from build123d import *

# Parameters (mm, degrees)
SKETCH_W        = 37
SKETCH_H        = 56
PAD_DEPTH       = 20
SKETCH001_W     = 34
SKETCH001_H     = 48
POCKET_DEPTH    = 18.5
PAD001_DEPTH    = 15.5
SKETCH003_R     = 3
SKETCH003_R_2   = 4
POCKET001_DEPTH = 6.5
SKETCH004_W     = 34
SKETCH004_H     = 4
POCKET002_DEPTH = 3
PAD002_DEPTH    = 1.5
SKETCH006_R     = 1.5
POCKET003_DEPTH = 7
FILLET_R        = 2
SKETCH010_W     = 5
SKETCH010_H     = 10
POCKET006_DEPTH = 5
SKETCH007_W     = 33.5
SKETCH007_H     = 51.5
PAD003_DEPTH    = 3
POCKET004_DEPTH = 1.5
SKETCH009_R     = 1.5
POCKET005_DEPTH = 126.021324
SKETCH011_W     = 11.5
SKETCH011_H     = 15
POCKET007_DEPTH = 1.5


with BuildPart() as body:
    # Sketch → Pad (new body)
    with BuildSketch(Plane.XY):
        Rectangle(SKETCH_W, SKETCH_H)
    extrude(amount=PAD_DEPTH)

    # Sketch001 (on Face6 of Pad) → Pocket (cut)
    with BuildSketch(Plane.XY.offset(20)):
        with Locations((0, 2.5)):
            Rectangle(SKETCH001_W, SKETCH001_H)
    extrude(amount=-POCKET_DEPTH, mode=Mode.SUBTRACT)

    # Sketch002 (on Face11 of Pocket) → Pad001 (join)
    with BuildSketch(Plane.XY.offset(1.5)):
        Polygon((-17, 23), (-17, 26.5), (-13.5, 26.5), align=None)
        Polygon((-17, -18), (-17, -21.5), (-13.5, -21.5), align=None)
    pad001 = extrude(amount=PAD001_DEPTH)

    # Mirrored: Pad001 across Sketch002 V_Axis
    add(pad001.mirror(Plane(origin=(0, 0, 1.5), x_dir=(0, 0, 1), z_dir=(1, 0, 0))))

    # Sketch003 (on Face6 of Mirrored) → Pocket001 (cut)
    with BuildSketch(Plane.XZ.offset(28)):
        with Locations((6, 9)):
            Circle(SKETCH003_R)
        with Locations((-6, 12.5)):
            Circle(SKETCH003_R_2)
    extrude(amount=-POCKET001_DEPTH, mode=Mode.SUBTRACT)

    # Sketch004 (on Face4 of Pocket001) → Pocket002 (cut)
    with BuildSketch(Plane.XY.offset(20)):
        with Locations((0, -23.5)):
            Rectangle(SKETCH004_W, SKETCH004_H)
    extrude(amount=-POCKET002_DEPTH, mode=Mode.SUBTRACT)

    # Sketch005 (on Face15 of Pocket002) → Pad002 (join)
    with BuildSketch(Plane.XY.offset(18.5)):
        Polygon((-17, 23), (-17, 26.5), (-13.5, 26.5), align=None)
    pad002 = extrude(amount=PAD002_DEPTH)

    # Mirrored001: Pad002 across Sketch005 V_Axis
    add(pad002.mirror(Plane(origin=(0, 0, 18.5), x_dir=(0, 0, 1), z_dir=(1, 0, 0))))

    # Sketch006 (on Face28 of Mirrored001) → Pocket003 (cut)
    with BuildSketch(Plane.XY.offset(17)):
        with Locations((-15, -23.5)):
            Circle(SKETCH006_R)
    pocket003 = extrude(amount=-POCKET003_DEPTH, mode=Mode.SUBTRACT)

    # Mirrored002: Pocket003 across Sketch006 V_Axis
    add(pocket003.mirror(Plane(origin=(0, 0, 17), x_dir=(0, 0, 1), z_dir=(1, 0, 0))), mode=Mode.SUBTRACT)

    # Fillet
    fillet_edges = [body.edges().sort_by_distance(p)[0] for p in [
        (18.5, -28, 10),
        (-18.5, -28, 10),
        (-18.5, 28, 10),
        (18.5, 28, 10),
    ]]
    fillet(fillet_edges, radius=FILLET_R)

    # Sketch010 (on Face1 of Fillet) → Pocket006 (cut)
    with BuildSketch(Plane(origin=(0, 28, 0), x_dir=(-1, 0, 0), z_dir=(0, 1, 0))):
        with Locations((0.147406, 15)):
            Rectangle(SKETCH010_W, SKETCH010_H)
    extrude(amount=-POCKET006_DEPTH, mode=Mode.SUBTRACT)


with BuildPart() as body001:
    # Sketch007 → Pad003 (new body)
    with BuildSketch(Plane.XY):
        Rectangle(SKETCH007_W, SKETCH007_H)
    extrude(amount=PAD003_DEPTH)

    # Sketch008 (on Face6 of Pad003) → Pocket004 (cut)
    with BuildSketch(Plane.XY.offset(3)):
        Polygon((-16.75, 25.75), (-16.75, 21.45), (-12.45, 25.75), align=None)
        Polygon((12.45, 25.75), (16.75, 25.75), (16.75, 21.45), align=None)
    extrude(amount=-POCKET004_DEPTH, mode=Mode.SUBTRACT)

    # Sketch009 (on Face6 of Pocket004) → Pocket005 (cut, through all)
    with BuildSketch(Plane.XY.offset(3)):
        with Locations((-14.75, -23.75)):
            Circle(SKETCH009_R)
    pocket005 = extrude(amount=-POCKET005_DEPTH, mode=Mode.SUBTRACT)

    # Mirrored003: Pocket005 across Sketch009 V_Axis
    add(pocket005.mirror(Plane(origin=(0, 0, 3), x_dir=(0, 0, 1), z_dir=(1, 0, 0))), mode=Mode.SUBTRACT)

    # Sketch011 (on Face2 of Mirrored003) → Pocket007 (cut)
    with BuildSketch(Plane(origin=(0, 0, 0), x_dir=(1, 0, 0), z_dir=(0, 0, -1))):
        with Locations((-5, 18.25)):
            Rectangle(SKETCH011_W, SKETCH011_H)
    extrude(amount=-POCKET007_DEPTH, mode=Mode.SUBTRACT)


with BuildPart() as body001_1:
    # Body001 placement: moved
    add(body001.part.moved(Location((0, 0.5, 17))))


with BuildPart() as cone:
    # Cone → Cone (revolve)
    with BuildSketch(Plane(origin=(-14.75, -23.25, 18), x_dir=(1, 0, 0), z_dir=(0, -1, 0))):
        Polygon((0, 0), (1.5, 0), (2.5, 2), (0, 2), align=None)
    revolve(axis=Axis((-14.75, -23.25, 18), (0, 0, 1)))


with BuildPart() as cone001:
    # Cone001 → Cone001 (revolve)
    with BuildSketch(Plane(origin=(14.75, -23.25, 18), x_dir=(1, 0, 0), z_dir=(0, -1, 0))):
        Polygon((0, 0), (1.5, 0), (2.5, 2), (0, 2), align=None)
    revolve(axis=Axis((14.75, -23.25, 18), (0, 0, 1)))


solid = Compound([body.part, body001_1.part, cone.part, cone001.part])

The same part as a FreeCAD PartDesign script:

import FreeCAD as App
import Part
import Sketcher

V = App.Vector


def edges_at(feature, points):
    """Names of the edges that pass closest to the given points."""
    edges = feature.Shape.Edges
    near = lambda p: min(range(len(edges)), key=lambda i: edges[i].distToShape(Part.Vertex(*p))[0])
    return sorted({f"Edge{near(p) + 1}" for p in points})


def add_polygon(sketch, points):
    """Adds a closed chain of lines whose ends are joined by coincident constraints."""
    first, n = sketch.GeometryCount, len(points)
    for a, b in zip(points, points[1:] + points[:1]):
        sketch.addGeometry(Part.LineSegment(App.Vector(*a, 0), App.Vector(*b, 0)), False)
    for i in range(n):
        sketch.addConstraint(Sketcher.Constraint("Coincident", first + i, 2, first + (i + 1) % n, 1))

doc = App.newDocument("Part")
body = doc.addObject("PartDesign::Body", "Body")

# Sketch on XY plane
sketch1 = body.newObject("Sketcher::SketchObject", "Sketch")
sketch1.AttachmentSupport = (doc.getObject("XY_Plane"), [""])
sketch1.MapMode = "FlatFace"
add_polygon(sketch1, [(-18, 28), (-18, -28), (18, -28), (18, 28)])  # lines 0-3
sketch1.addConstraint([
    Sketcher.Constraint("Vertical", 0),
    Sketcher.Constraint("Horizontal", 1),
    Sketcher.Constraint("Vertical", 2),
    Sketcher.Constraint("Horizontal", 3),
    Sketcher.Constraint("Symmetric", 0, 2, 2, 2, -1, 1),
    Sketcher.Constraint("DistanceX", 1, 1, 1, 2, 37.0),
    Sketcher.Constraint("DistanceY", 0, 2, 0, 1, 56.0),
])
pad1 = body.newObject("PartDesign::Pad", "Pad")
pad1.Profile = sketch1
pad1.Length = 20

# Sketch on XY plane
sketch2 = body.newObject("Sketcher::SketchObject", "Sketch001")
sketch2.AttachmentSupport = (doc.getObject("XY_Plane"), [""])
sketch2.MapMode = "FlatFace"
sketch2.AttachmentOffset = App.Placement(V(0, 0, 20), App.Rotation())
add_polygon(sketch2, [(-17, 26), (-17, -22), (17, -22), (17, 26)])  # lines 0-3
sketch2.addConstraint([
    Sketcher.Constraint("Vertical", 0),
    Sketcher.Constraint("Horizontal", 1),
    Sketcher.Constraint("Vertical", 2),
    Sketcher.Constraint("Horizontal", 3),
    Sketcher.Constraint("DistanceX", 1, 1, 1, 2, 34.0),
    Sketcher.Constraint("DistanceY", 0, 2, 0, 1, 48.0),
    Sketcher.Constraint("DistanceX", 0, 2, -1, 1, 17.0),
    Sketcher.Constraint("DistanceY", 0, 2, -1, 1, 21.5),
])
pocket1 = body.newObject("PartDesign::Pocket", "Pocket")
pocket1.Profile = sketch2
pocket1.Length = 18.5

# Sketch on XY plane
sketch3 = body.newObject("Sketcher::SketchObject", "Sketch002")
sketch3.AttachmentSupport = (doc.getObject("XY_Plane"), [""])
sketch3.MapMode = "FlatFace"
sketch3.AttachmentOffset = App.Placement(V(0, 0, 1.5), App.Rotation())
add_polygon(sketch3, [(-17, 26.5), (-17, 23), (-13.5, 26.5)])  # lines 0-2
add_polygon(sketch3, [(-17, -18), (-17, -21.5), (-13.5, -21.5)])  # lines 3-5
sketch3.addConstraint([
    Sketcher.Constraint("Vertical", 0),
    Sketcher.Constraint("Horizontal", 2),
    Sketcher.Constraint("Vertical", 3),
    Sketcher.Constraint("Horizontal", 4),
    Sketcher.Constraint("Perpendicular", 1, 5),
    Sketcher.Constraint("Vertical", 2, 2, 3, 2),
    Sketcher.Constraint("Vertical", 1, 2, 4, 2),
    Sketcher.Constraint("Equal", 4, 0),
    Sketcher.Constraint("DistanceX", 2, 2, 2, 1, 3.5),
    Sketcher.Constraint("DistanceX", 0, 2, -1, 1, 17.0),
    Sketcher.Constraint("DistanceY", -1, 1, 0, 2, 23.0),
    Sketcher.Constraint("DistanceY", 5, 2, -1, 1, 18.0),
])
pad2 = body.newObject("PartDesign::Pad", "Pad001")
pad2.Profile = sketch3
pad2.Length = 15.5
doc.recompute()

mirrored = body.newObject("PartDesign::Mirrored", "Mirrored")
mirrored.Originals = [pad2]
mirrored.MirrorPlane = (doc.getObject("YZ_Plane"), [""])
body.Tip = mirrored

# Sketch on XZ plane
sketch4 = body.newObject("Sketcher::SketchObject", "Sketch003")
sketch4.AttachmentSupport = (doc.getObject("XZ_Plane"), [""])
sketch4.MapMode = "FlatFace"
sketch4.AttachmentOffset = App.Placement(V(0, 0, 28), App.Rotation())
sketch4.addGeometry([
    Part.Circle(V(6, 9, 0), V(0, 0, 1), 3),
    Part.Circle(V(-6, 12.5, 0), V(0, 0, 1), 4),
], False)
sketch4.addConstraint([
    Sketcher.Constraint("Diameter", 0, 6.0),
    Sketcher.Constraint("Diameter", 1, 8.0),
    Sketcher.Constraint("DistanceX", -1, 1, 0, 3, 6.0),
    Sketcher.Constraint("DistanceY", -1, 1, 0, 3, 9.0),
    Sketcher.Constraint("DistanceX", 1, 3, -1, 1, 6.0),
    Sketcher.Constraint("DistanceY", -1, 1, 1, 3, 12.5),
])
pocket2 = body.newObject("PartDesign::Pocket", "Pocket001")
pocket2.Profile = sketch4
pocket2.Length = 6.5

# Sketch on XY plane
sketch5 = body.newObject("Sketcher::SketchObject", "Sketch004")
sketch5.AttachmentSupport = (doc.getObject("XY_Plane"), [""])
sketch5.MapMode = "FlatFace"
sketch5.AttachmentOffset = App.Placement(V(0, 0, 20), App.Rotation())
add_polygon(sketch5, [(-17, -21.5), (-17, -25.5), (17, -25.5), (17, -21.5)])  # lines 0-3
sketch5.addConstraint([
    Sketcher.Constraint("Vertical", 0),
    Sketcher.Constraint("Horizontal", 1),
    Sketcher.Constraint("Vertical", 2),
    Sketcher.Constraint("Horizontal", 3),
    Sketcher.Constraint("DistanceX", 1, 1, 1, 2, 34.0),
    Sketcher.Constraint("DistanceY", 0, 2, 0, 1, 4.0),
    Sketcher.Constraint("DistanceX", 0, 2, -1, 1, 17.0),
    Sketcher.Constraint("DistanceY", 0, 2, -1, 1, 25.5),
])
pocket3 = body.newObject("PartDesign::Pocket", "Pocket002")
pocket3.Profile = sketch5
pocket3.Length = 3

# Sketch on XY plane
sketch6 = body.newObject("Sketcher::SketchObject", "Sketch005")
sketch6.AttachmentSupport = (doc.getObject("XY_Plane"), [""])
sketch6.MapMode = "FlatFace"
sketch6.AttachmentOffset = App.Placement(V(0, 0, 18.5), App.Rotation())
add_polygon(sketch6, [(-17, 26.5), (-17, 23), (-13.5, 26.5)])  # lines 0-2
sketch6.addConstraint([
    Sketcher.Constraint("Vertical", 0),
    Sketcher.Constraint("Horizontal", 2),
    Sketcher.Constraint("Equal", 2, 0),
    Sketcher.Constraint("DistanceX", 2, 2, 2, 1, 3.5),
    Sketcher.Constraint("DistanceX", 0, 2, -1, 1, 17.0),
    Sketcher.Constraint("DistanceY", -1, 1, 0, 2, 23.0),
])
pad3 = body.newObject("PartDesign::Pad", "Pad002")
pad3.Profile = sketch6
pad3.Length = 1.5
doc.recompute()

mirrored2 = body.newObject("PartDesign::Mirrored", "Mirrored001")
mirrored2.Originals = [pad3]
mirrored2.MirrorPlane = (doc.getObject("YZ_Plane"), [""])
body.Tip = mirrored2

# Sketch on XY plane
sketch7 = body.newObject("Sketcher::SketchObject", "Sketch006")
sketch7.AttachmentSupport = (doc.getObject("XY_Plane"), [""])
sketch7.MapMode = "FlatFace"
sketch7.AttachmentOffset = App.Placement(V(0, 0, 17), App.Rotation())
sketch7.addGeometry(Part.Circle(V(-15, -23.5, 0), V(0, 0, 1), 1.5), False)
sketch7.addConstraint([
    Sketcher.Constraint("Diameter", 0, 3.0),
    Sketcher.Constraint("DistanceX", 0, 3, -1, 1, 15.0),
    Sketcher.Constraint("DistanceY", 0, 3, -1, 1, 23.5),
])
pocket4 = body.newObject("PartDesign::Pocket", "Pocket003")
pocket4.Profile = sketch7
pocket4.Length = 7
doc.recompute()

mirrored3 = body.newObject("PartDesign::Mirrored", "Mirrored002")
mirrored3.Originals = [pocket4]
mirrored3.MirrorPlane = (doc.getObject("YZ_Plane"), [""])
body.Tip = mirrored3
doc.recompute()

fillet = body.newObject("PartDesign::Fillet", "Fillet")
fillet.Base = (mirrored3, edges_at(mirrored3, [
    (18.5, -28, 10),
    (-18.5, -28, 10),
    (-18.5, 28, 10),
    (18.5, 28, 10),
]))
fillet.Radius = 2

# Sketch on XZ plane
sketch8 = body.newObject("Sketcher::SketchObject", "Sketch007")
sketch8.AttachmentSupport = (doc.getObject("XZ_Plane"), [""])
sketch8.MapMode = "FlatFace"
sketch8.AttachmentOffset = App.Placement(V(0, 0, -28), App.Rotation())
add_polygon(sketch8, [(2, 20), (2, 10), (-3, 10), (-3, 20)])  # lines 0-3
sketch8.addConstraint([
    Sketcher.Constraint("Vertical", 0),
    Sketcher.Constraint("Horizontal", 1),
    Sketcher.Constraint("Vertical", 2),
    Sketcher.Constraint("Horizontal", 3),
    Sketcher.Constraint("DistanceX", 1, 2, 1, 1, 5.0),
    Sketcher.Constraint("DistanceY", 0, 2, 0, 1, 10.0),
    Sketcher.Constraint("DistanceY", -1, 1, 0, 2, 10.0),
    Sketcher.Constraint("DistanceX", -1, 1, 0, 2, 2.352594),
])
pocket5 = body.newObject("PartDesign::Pocket", "Pocket004")
pocket5.Profile = sketch8
pocket5.Length = 5
pocket5.Reversed = True
body2 = doc.addObject("PartDesign::Body", "Body001")

# Sketch on XY plane
sketch9 = body2.newObject("Sketcher::SketchObject", "Sketch008")
sketch9.AttachmentSupport = (doc.getObject("XY_Plane001"), [""])
sketch9.MapMode = "FlatFace"
add_polygon(sketch9, [(-17, 26), (-17, -26), (17, -26), (17, 26)])  # lines 0-3
sketch9.addConstraint([
    Sketcher.Constraint("Vertical", 0),
    Sketcher.Constraint("Horizontal", 1),
    Sketcher.Constraint("Vertical", 2),
    Sketcher.Constraint("Horizontal", 3),
    Sketcher.Constraint("Symmetric", 0, 2, 2, 2, -1, 1),
    Sketcher.Constraint("DistanceX", 1, 1, 1, 2, 33.5),
    Sketcher.Constraint("DistanceY", 0, 2, 0, 1, 51.5),
])
pad4 = body2.newObject("PartDesign::Pad", "Pad003")
pad4.Profile = sketch9
pad4.Length = 3

# Sketch on XY plane
sketch10 = body2.newObject("Sketcher::SketchObject", "Sketch009")
sketch10.AttachmentSupport = (doc.getObject("XY_Plane001"), [""])
sketch10.MapMode = "FlatFace"
sketch10.AttachmentOffset = App.Placement(V(0, 0, 3), App.Rotation())
add_polygon(sketch10, [(-16.8, 25.8), (-16.8, 21.4), (-12.4, 25.8)])  # lines 0-2
add_polygon(sketch10, [(16.8, 25.8), (12.4, 25.8), (16.8, 21.4)])  # lines 3-5
sketch10.addConstraint([
    Sketcher.Constraint("Vertical", 0),
    Sketcher.Constraint("Horizontal", 2),
    Sketcher.Constraint("Horizontal", 3),
    Sketcher.Constraint("Vertical", 5),
    Sketcher.Constraint("Symmetric", 1, 2, 3, 2, -2),
    Sketcher.Constraint("Symmetric", 0, 2, 4, 2, -2),
    Sketcher.Constraint("Perpendicular", 1, 4),
    Sketcher.Constraint("DistanceX", 2, 2, 2, 1, 4.3),
    Sketcher.Constraint("DistanceX", 1, 2, 3, 2, 24.9),
    Sketcher.Constraint("DistanceY", -1, 1, 0, 2, 21.45),
])
pocket6 = body2.newObject("PartDesign::Pocket", "Pocket005")
pocket6.Profile = sketch10
pocket6.Length = 1.5

# Sketch on XY plane
sketch11 = body2.newObject("Sketcher::SketchObject", "Sketch010")
sketch11.AttachmentSupport = (doc.getObject("XY_Plane001"), [""])
sketch11.MapMode = "FlatFace"
sketch11.AttachmentOffset = App.Placement(V(0, 0, 3), App.Rotation())
sketch11.addGeometry(Part.Circle(V(-14.8, -23.8, 0), V(0, 0, 1), 1.5), False)
sketch11.addConstraint([
    Sketcher.Constraint("Diameter", 0, 3.0),
    Sketcher.Constraint("DistanceX", 0, 3, -1, 1, 14.75),
    Sketcher.Constraint("DistanceY", 0, 3, -1, 1, 23.75),
])
pocket7 = body2.newObject("PartDesign::Pocket", "Pocket006")
pocket7.Profile = sketch11
pocket7.Type = "ThroughAll"
doc.recompute()

mirrored4 = body2.newObject("PartDesign::Mirrored", "Mirrored003")
mirrored4.Originals = [pocket7]
mirrored4.MirrorPlane = (doc.getObject("YZ_Plane001"), [""])
body2.Tip = mirrored4

# Sketch on XY plane
sketch12 = body2.newObject("Sketcher::SketchObject", "Sketch011")
sketch12.AttachmentSupport = (doc.getObject("XY_Plane001"), [""])
sketch12.MapMode = "FlatFace"
add_polygon(sketch12, [(-11, -26), (-11, -11), (1, -11), (1, -26)])  # lines 0-3
sketch12.addConstraint([
    Sketcher.Constraint("Vertical", 0),
    Sketcher.Constraint("Horizontal", 1),
    Sketcher.Constraint("Vertical", 2),
    Sketcher.Constraint("Horizontal", 3),
    Sketcher.Constraint("DistanceY", 0, 1, 0, 2, 15.0),
    Sketcher.Constraint("DistanceX", 1, 1, 1, 2, 11.5),
    Sketcher.Constraint("DistanceX", 0, 2, -1, 1, 10.75),
    Sketcher.Constraint("DistanceY", 0, 2, -1, 1, 10.75),
])
pocket8 = body2.newObject("PartDesign::Pocket", "Pocket007")
pocket8.Profile = sketch12
pocket8.Length = 1.5
pocket8.Reversed = True
body3 = doc.addObject("PartDesign::Body", "Body002")
doc.recompute()

body2.Placement = App.Placement(V(0, 0.5, 17), App.Rotation(V(0, 0, 1), 0))
boolean = body3.newObject("PartDesign::Boolean", "Boolean")
boolean.Type = "Fuse"
boolean.addObjects([body2])
body4 = doc.addObject("PartDesign::Body", "Body003")

# Sketch on XZ plane
sketch13 = body4.newObject("Sketcher::SketchObject", "Sketch012")
sketch13.AttachmentSupport = (doc.getObject("XZ_Plane003"), [""])
sketch13.MapMode = "FlatFace"
sketch13.AttachmentOffset = App.Placement(V(0, 0, 23.25), App.Rotation())
add_polygon(sketch13, [(-14.8, 18), (-13.2, 18), (-12.2, 20), (-14.8, 20)])  # lines 0-3
sketch13.addGeometry(Part.LineSegment(V(-14.8, 18, 0), V(-14.8, 20, 0)), True)  # axis
sketch13.addConstraint([
    Sketcher.Constraint("Horizontal", 0),
    Sketcher.Constraint("Horizontal", 2),
    Sketcher.Constraint("Vertical", 3),
    Sketcher.Constraint("Vertical", 4),
    Sketcher.Constraint("Coincident", 4, 1, 3, 2),
    Sketcher.Constraint("Horizontal", 1, 2, 4, 2),
    Sketcher.Constraint("DistanceY", 3, 2, 3, 1, 2.0),
    Sketcher.Constraint("DistanceX", 0, 1, 0, 2, 1.5),
    Sketcher.Constraint("DistanceX", 2, 2, 2, 1, 2.5),
    Sketcher.Constraint("DistanceY", -1, 1, 0, 2, 18.0),
    Sketcher.Constraint("DistanceX", 0, 2, -1, 1, 13.25),
])
revolution = body4.newObject("PartDesign::Revolution", "Revolution")
revolution.Profile = sketch13
revolution.ReferenceAxis = (sketch13, ["Axis0"])
revolution.Angle = 360
body5 = doc.addObject("PartDesign::Body", "Body004")

# Sketch on XZ plane
sketch14 = body5.newObject("Sketcher::SketchObject", "Sketch013")
sketch14.AttachmentSupport = (doc.getObject("XZ_Plane004"), [""])
sketch14.MapMode = "FlatFace"
sketch14.AttachmentOffset = App.Placement(V(0, 0, 23.25), App.Rotation())
add_polygon(sketch14, [(14.8, 18), (16.2, 18), (17.2, 20), (14.8, 20)])  # lines 0-3
sketch14.addGeometry(Part.LineSegment(V(14.8, 18, 0), V(14.8, 20, 0)), True)  # axis
sketch14.addConstraint([
    Sketcher.Constraint("Horizontal", 0),
    Sketcher.Constraint("Horizontal", 2),
    Sketcher.Constraint("Vertical", 3),
    Sketcher.Constraint("Vertical", 4),
    Sketcher.Constraint("Coincident", 4, 1, 3, 2),
    Sketcher.Constraint("Horizontal", 1, 2, 4, 2),
    Sketcher.Constraint("DistanceY", 3, 2, 3, 1, 2.0),
    Sketcher.Constraint("DistanceX", 0, 1, 0, 2, 1.5),
    Sketcher.Constraint("DistanceX", 2, 2, 2, 1, 2.5),
    Sketcher.Constraint("DistanceY", -1, 1, 0, 2, 18.0),
    Sketcher.Constraint("DistanceX", -1, 1, 0, 2, 16.25),
])
revolution2 = body5.newObject("PartDesign::Revolution", "Revolution001")
revolution2.Profile = sketch14
revolution2.ReferenceAxis = (sketch14, ["Axis0"])
revolution2.Angle = 360

doc.recompute()
